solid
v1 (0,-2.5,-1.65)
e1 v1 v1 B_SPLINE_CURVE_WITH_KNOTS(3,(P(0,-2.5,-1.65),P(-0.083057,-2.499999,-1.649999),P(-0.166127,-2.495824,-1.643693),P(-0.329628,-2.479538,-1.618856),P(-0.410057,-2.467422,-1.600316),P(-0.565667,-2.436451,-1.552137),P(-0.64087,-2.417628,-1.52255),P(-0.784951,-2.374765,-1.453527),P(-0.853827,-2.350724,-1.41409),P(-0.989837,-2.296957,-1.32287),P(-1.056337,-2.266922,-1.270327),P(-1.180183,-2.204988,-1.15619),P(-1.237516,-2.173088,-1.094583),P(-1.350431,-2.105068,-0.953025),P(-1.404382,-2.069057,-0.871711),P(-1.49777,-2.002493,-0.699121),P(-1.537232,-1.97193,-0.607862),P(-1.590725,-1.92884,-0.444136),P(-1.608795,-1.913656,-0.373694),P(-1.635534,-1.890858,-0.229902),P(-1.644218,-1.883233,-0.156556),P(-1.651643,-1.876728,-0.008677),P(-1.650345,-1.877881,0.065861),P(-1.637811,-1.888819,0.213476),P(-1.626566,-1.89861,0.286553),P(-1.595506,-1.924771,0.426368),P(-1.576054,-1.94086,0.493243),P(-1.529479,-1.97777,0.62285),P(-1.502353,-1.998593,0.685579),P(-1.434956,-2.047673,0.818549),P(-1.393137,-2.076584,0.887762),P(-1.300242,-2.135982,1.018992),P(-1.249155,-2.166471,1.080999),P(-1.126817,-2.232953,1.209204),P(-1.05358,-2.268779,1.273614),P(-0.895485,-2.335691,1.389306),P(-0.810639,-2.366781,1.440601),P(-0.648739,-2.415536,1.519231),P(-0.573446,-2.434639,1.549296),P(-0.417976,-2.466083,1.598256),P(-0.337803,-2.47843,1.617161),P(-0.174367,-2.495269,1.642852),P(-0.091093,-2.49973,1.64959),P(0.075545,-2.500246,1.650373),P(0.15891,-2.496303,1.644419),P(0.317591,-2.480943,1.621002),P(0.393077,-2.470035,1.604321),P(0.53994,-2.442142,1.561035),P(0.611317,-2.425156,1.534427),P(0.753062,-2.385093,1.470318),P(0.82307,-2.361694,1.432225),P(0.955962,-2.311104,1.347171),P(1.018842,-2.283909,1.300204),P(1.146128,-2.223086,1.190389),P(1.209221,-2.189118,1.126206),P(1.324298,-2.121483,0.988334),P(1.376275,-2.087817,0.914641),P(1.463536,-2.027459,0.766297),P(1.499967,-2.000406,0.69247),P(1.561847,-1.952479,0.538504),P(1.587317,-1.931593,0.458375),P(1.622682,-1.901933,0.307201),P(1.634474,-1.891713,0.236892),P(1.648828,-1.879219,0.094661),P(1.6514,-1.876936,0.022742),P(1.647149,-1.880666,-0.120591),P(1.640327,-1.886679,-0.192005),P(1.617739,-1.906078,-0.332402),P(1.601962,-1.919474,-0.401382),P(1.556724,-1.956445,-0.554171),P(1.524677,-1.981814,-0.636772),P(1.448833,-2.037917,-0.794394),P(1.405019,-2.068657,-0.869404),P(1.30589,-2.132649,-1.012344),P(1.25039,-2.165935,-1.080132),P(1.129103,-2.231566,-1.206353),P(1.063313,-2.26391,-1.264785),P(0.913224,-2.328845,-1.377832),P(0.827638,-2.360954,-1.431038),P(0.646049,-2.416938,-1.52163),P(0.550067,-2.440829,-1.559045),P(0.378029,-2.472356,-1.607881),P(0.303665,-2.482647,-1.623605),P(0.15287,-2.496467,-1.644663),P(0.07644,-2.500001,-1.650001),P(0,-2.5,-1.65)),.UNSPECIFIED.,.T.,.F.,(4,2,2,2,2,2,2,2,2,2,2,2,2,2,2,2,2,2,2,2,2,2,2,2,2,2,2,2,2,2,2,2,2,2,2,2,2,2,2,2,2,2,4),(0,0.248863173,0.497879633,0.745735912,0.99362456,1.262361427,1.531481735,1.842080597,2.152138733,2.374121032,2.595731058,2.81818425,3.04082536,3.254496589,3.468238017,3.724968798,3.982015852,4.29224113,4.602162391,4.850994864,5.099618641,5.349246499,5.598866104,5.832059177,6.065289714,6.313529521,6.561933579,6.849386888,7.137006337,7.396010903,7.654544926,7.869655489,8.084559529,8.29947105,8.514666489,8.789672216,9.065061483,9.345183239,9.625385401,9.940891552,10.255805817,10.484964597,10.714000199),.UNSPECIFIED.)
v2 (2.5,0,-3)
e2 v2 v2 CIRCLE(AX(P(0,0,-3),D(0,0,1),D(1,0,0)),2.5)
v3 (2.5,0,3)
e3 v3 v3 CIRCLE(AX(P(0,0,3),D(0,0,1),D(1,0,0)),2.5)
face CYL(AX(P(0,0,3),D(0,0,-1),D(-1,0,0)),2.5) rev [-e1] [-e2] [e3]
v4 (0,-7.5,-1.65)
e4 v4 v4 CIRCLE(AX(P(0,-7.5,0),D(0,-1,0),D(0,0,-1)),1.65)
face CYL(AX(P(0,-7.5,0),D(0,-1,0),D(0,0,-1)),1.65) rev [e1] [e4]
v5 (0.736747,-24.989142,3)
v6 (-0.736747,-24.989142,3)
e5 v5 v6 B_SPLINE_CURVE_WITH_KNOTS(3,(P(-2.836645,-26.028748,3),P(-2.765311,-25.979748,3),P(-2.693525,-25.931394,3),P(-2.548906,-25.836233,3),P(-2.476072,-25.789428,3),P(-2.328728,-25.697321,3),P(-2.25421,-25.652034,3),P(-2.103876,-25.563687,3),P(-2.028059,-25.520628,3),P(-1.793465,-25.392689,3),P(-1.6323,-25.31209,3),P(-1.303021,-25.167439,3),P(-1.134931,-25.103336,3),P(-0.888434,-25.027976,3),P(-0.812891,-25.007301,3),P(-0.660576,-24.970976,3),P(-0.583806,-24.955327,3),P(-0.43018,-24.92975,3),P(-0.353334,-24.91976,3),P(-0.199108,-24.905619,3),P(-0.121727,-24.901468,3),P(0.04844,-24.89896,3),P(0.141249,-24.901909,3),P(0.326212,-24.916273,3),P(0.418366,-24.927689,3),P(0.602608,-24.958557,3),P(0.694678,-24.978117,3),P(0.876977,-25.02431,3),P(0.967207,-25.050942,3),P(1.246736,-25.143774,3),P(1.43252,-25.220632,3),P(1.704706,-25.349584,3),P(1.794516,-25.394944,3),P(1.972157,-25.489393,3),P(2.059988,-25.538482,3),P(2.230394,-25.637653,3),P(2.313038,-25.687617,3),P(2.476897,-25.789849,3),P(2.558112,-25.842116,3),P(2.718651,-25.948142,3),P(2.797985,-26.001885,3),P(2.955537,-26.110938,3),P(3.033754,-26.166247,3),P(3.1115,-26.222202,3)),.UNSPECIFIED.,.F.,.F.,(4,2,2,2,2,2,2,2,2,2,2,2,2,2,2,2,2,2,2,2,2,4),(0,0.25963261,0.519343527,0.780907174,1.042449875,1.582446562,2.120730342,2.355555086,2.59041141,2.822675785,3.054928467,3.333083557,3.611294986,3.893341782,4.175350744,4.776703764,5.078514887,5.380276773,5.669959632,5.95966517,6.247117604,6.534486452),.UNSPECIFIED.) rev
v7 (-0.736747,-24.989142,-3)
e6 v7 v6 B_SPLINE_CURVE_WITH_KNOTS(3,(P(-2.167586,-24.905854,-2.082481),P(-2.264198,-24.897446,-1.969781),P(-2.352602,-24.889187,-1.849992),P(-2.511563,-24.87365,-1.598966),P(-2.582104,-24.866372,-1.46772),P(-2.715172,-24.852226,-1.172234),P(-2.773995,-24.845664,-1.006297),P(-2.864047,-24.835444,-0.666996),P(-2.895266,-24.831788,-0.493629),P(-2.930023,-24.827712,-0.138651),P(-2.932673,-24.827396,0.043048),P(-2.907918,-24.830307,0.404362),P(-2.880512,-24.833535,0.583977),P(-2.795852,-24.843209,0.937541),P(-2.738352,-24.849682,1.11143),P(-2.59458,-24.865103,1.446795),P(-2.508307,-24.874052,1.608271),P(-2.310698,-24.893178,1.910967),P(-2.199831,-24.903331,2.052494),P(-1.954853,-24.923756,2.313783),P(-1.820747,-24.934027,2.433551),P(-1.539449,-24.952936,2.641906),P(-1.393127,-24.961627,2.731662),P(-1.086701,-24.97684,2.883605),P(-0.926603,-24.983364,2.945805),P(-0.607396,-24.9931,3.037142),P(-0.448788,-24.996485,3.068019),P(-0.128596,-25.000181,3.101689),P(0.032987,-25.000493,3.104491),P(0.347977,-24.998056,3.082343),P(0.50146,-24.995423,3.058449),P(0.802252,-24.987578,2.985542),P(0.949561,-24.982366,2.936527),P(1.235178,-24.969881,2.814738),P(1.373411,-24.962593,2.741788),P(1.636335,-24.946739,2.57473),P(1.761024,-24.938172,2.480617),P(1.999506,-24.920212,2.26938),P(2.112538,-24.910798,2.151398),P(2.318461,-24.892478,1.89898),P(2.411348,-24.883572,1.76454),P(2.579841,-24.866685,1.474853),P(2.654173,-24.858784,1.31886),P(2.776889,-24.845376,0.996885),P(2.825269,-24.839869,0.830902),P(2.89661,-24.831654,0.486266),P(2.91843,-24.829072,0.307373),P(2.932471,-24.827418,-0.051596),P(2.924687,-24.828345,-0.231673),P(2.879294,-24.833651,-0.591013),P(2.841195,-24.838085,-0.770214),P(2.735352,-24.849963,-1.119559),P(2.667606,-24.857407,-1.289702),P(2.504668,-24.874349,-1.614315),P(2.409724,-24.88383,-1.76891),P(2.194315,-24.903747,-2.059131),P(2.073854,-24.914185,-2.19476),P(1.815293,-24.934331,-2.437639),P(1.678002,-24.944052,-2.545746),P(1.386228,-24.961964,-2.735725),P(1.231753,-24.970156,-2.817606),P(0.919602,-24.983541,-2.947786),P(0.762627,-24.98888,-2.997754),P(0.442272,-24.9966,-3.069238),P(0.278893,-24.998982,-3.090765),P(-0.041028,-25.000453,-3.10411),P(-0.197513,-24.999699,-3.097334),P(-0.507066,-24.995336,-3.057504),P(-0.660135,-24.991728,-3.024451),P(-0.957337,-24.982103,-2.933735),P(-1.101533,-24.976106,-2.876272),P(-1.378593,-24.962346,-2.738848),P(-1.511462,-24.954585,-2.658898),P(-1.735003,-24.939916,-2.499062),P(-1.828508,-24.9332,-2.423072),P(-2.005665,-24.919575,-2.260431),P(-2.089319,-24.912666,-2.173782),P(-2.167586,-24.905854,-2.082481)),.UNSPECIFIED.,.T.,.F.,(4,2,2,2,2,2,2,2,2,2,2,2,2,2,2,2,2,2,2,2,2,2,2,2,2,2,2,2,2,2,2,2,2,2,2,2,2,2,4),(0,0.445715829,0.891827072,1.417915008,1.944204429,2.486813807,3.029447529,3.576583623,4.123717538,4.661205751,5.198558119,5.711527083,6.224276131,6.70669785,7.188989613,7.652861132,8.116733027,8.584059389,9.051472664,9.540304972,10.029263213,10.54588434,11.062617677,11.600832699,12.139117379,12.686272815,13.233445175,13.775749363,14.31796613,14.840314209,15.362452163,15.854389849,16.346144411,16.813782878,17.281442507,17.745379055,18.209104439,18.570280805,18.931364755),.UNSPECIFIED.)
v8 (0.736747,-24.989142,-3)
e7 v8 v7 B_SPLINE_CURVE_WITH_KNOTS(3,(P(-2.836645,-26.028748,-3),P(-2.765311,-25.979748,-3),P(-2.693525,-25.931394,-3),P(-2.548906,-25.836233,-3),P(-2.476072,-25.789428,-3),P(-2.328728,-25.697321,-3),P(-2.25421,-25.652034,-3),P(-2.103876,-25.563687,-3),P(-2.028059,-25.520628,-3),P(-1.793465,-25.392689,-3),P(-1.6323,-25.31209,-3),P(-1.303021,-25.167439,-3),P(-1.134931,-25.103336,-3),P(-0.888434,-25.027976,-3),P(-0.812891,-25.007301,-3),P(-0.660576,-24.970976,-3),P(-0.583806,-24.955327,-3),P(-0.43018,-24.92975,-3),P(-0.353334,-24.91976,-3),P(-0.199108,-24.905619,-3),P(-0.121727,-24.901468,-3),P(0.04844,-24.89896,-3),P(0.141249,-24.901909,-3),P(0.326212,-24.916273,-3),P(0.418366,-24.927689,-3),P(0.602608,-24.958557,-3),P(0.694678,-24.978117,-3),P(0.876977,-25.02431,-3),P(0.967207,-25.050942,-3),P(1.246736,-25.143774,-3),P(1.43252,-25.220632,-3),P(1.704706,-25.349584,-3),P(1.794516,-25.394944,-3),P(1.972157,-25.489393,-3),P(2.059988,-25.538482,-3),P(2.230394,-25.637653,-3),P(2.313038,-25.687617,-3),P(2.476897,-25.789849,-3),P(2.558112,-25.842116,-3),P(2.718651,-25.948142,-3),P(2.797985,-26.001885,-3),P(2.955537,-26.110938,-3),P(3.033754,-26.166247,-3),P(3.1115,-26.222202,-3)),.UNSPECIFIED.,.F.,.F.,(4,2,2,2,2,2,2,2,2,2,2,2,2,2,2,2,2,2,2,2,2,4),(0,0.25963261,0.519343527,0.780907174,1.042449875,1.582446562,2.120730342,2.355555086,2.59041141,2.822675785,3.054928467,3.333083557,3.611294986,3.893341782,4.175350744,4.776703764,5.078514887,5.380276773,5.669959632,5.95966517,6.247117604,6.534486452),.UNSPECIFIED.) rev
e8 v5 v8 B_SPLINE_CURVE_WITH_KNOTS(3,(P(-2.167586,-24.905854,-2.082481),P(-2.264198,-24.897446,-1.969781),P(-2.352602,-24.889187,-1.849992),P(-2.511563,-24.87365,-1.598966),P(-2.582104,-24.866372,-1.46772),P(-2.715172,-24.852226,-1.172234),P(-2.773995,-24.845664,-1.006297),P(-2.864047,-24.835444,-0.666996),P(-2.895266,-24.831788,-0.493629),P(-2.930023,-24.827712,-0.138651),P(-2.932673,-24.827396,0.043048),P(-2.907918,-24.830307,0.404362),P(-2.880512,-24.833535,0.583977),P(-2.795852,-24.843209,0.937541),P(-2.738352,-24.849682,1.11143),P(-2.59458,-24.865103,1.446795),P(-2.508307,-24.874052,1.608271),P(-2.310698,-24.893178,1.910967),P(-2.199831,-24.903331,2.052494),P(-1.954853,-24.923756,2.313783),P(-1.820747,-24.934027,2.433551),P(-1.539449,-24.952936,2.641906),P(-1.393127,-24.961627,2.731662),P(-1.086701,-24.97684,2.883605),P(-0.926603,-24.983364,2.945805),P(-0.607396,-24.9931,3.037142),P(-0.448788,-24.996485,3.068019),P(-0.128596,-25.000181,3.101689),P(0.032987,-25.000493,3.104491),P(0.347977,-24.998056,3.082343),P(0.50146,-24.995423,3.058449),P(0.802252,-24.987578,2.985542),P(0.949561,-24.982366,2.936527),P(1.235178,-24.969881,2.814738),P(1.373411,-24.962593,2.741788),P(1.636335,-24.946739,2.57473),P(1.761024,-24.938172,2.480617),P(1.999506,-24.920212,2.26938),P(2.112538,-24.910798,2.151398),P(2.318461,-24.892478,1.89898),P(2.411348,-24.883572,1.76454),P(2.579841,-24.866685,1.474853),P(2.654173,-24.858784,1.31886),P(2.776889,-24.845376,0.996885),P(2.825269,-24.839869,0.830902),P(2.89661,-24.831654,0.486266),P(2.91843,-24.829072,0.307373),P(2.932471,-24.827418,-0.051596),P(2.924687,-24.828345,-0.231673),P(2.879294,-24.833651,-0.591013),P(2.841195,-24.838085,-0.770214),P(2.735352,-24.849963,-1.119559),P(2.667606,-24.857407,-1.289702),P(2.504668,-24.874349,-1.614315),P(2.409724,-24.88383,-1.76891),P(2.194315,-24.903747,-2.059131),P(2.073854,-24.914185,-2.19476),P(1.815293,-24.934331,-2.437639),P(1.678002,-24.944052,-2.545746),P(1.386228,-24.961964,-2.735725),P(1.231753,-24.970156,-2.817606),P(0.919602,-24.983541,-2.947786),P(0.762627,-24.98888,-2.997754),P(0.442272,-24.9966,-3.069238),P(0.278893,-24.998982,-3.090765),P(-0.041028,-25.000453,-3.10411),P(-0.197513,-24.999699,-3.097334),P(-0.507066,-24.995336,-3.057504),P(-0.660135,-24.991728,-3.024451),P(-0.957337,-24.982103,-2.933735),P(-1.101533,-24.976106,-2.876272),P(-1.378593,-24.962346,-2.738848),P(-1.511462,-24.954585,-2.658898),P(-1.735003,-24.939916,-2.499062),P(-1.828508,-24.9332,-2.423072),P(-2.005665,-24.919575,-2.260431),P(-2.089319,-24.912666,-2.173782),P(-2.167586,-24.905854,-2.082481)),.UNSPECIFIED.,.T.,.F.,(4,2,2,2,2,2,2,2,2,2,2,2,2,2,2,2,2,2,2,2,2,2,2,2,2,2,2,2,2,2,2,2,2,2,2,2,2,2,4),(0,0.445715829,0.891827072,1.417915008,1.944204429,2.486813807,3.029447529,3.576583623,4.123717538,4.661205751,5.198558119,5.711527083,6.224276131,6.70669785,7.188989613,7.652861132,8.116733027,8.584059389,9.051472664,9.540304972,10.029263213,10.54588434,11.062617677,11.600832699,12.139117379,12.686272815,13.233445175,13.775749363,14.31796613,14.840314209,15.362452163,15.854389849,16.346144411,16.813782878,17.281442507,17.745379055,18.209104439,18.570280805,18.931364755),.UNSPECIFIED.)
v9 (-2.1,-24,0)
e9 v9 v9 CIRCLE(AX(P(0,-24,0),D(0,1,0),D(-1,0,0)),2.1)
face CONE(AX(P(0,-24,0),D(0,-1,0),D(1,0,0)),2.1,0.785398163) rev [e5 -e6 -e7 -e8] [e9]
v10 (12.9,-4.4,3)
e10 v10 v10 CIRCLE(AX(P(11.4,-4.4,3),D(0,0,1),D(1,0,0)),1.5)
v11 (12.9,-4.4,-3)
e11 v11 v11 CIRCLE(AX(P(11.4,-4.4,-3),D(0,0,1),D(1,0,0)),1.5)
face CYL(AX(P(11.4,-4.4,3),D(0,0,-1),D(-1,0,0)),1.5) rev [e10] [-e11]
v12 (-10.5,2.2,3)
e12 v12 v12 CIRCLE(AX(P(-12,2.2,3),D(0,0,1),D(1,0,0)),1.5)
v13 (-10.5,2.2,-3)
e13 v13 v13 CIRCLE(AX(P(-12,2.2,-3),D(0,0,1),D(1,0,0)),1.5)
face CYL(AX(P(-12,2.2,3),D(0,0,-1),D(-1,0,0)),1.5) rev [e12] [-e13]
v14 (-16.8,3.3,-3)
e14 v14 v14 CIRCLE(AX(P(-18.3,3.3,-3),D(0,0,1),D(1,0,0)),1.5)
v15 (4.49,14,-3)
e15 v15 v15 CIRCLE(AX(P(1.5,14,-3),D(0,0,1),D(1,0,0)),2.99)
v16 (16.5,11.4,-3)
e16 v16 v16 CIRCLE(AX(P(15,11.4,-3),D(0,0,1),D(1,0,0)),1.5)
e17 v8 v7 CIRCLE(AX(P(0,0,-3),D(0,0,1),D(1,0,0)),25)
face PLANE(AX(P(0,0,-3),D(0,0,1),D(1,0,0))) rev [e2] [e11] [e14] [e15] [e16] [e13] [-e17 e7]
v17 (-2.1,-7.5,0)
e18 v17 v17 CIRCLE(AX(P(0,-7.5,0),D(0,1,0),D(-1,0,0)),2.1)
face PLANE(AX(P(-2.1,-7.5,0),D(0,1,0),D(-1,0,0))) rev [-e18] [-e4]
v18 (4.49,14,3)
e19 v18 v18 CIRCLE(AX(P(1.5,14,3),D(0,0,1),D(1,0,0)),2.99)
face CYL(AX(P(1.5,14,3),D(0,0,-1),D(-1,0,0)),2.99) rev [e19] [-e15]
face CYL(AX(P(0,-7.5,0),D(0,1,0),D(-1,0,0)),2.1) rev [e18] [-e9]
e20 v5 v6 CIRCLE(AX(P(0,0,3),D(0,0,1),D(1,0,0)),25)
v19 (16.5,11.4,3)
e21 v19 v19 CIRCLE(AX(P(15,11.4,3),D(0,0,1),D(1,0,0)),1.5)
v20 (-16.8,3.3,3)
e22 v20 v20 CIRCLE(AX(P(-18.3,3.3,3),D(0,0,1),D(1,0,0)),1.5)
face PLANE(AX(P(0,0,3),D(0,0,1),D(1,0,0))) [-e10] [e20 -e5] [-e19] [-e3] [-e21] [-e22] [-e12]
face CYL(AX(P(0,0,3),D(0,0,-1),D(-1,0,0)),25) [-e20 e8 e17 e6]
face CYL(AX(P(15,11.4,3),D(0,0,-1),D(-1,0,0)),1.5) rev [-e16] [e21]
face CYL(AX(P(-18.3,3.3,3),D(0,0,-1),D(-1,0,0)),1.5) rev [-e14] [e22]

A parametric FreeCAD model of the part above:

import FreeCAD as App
import Part
import Sketcher
Q = App.Units.Quantity


def add_polygon(sketch, points):
    """Adds a closed chain of lines whose ends are joined by coincident constraints."""
    first, n = sketch.GeometryCount, len(points)
    for a, b in zip(points, points[1:] + points[:1]):
        sketch.addGeometry(Part.LineSegment(App.Vector(*a, 0), App.Vector(*b, 0)), False)
    for i in range(n):
        sketch.addConstraint(Sketcher.Constraint("Coincident", first + i, 2, first + (i + 1) % n, 1))

doc = App.newDocument("Part")
body = doc.addObject("PartDesign::Body", "Body")

# Sketch on XY plane
sketch1 = body.newObject("Sketcher::SketchObject", "Sketch")
sketch1.AttachmentSupport = (doc.getObject("XY_Plane"), [""])
sketch1.MapMode = "FlatFace"
sketch1.addGeometry([
    Part.Circle(App.Vector(0, 0, 0), App.Vector(0, 0, 1), 25),  # 0
    Part.Circle(App.Vector(-12, 2.2, 0), App.Vector(0, 0, 1), 1.5),  # 1
    Part.Circle(App.Vector(-18.3, 3.3, 0), App.Vector(0, 0, 1), 1.5),  # 2
    Part.Circle(App.Vector(11.4, -4.4, 0), App.Vector(0, 0, 1), 1.5),  # 3
    Part.Circle(App.Vector(0, 0, 0), App.Vector(0, 0, 1), 2.5),  # 4
    Part.Circle(App.Vector(1.5, 14, 0), App.Vector(0, 0, 1), 2.99),  # 5
    Part.Circle(App.Vector(15, 11.4, 0), App.Vector(0, 0, 1), 1.5),  # 6
], False)
sketch1.addConstraint([
    Sketcher.Constraint("Coincident", 0, 3, -1, 1),
    Sketcher.Constraint("Coincident", 4, 3, -1, 1),
    Sketcher.Constraint("Equal", 1, 2),
    Sketcher.Constraint("Equal", 2, 3),
    Sketcher.Constraint("Equal", 3, 6),
    Sketcher.Constraint("Diameter", 0, 50.0),
    Sketcher.Constraint("Diameter", 1, 3.0),
    Sketcher.Constraint("Diameter", 4, 5.0),
    Sketcher.Constraint("Diameter", 5, 5.98),
    Sketcher.Constraint("DistanceX", 1, 3, -1, 1, 12.0),
    Sketcher.Constraint("DistanceY", -1, 1, 5, 3, 14.0),
    Sketcher.Constraint("DistanceX", -1, 1, 6, 3, 15.0),
    Sketcher.Constraint("DistanceY", -1, 1, 1, 3, 2.2),
    Sketcher.Constraint("DistanceX", 2, 3, -1, 1, 18.3),
    Sketcher.Constraint("DistanceY", -1, 1, 2, 3, 3.3),
    Sketcher.Constraint("DistanceX", -1, 1, 3, 3, 11.4),
    Sketcher.Constraint("DistanceY", 3, 3, -1, 1, 4.4),
    Sketcher.Constraint("DistanceX", -1, 1, 5, 3, 1.5),
    Sketcher.Constraint("DistanceY", -1, 1, 6, 3, 11.4),
])
pad1 = body.newObject("PartDesign::Pad", "Pad")
pad1.Profile = sketch1
pad1.Length = 6
pad1.Midplane = True

# Sketch on XY plane
sketch2 = body.newObject("Sketcher::SketchObject", "Sketch001")
sketch2.AttachmentSupport = (doc.getObject("XY_Plane"), [""])
sketch2.MapMode = "FlatFace"
add_polygon(sketch2, [(0, -25), (0, -7.5), (-2.1, -7.5), (-2.1, -24), (-3.1, -25)])  # lines 0-4
sketch2.addConstraint([
    Sketcher.Constraint("Vertical", 0),
    Sketcher.Constraint("Horizontal", 1),
    Sketcher.Constraint("Vertical", 2),
    Sketcher.Constraint("Horizontal", 4),
    Sketcher.Constraint("PointOnObject", 0, 2, -2),
    Sketcher.Constraint("Angle", 3, Q("-135 deg")),
    Sketcher.Constraint("DistanceX", 1, 2, 1, 1, 2.1),
    Sketcher.Constraint("DistanceX", 4, 1, 4, 2, 3.1),
    Sketcher.Constraint("DistanceY", 0, 1, 0, 2, 17.5),
    Sketcher.Constraint("DistanceY", 2, 2, -1, 1, 24.0),
])
groove = body.newObject("PartDesign::Groove", "Groove")
groove.Profile = sketch2
groove.ReferenceAxis = (sketch2, ["V_Axis"])
groove.Angle = 360

# Sketch on XZ plane
sketch3 = body.newObject("Sketcher::SketchObject", "Sketch002")
sketch3.AttachmentSupport = (doc.getObject("XZ_Plane"), [""])
sketch3.MapMode = "FlatFace"
sketch3.AttachmentOffset = App.Placement(App.Vector(0, 0, 7.5), App.Rotation())
sketch3.addGeometry(Part.Circle(App.Vector(0, 0, 0), App.Vector(0, 0, 1), 1.65), False)
sketch3.addConstraint([
    Sketcher.Constraint("Coincident", 0, 3, -1, 1),
    Sketcher.Constraint("Diameter", 0, 3.3),
])
doc.recompute()
hole = body.newObject("PartDesign::Hole", "Hole")
hole.Profile = sketch3
hole.ThreadType = "None"
hole.Diameter = 3.3
hole.DepthType = "Dimension"
hole.Depth = 7.5
hole.DrillPoint = "Angled"
hole.DrillPointAngle = 118

doc.recompute()
